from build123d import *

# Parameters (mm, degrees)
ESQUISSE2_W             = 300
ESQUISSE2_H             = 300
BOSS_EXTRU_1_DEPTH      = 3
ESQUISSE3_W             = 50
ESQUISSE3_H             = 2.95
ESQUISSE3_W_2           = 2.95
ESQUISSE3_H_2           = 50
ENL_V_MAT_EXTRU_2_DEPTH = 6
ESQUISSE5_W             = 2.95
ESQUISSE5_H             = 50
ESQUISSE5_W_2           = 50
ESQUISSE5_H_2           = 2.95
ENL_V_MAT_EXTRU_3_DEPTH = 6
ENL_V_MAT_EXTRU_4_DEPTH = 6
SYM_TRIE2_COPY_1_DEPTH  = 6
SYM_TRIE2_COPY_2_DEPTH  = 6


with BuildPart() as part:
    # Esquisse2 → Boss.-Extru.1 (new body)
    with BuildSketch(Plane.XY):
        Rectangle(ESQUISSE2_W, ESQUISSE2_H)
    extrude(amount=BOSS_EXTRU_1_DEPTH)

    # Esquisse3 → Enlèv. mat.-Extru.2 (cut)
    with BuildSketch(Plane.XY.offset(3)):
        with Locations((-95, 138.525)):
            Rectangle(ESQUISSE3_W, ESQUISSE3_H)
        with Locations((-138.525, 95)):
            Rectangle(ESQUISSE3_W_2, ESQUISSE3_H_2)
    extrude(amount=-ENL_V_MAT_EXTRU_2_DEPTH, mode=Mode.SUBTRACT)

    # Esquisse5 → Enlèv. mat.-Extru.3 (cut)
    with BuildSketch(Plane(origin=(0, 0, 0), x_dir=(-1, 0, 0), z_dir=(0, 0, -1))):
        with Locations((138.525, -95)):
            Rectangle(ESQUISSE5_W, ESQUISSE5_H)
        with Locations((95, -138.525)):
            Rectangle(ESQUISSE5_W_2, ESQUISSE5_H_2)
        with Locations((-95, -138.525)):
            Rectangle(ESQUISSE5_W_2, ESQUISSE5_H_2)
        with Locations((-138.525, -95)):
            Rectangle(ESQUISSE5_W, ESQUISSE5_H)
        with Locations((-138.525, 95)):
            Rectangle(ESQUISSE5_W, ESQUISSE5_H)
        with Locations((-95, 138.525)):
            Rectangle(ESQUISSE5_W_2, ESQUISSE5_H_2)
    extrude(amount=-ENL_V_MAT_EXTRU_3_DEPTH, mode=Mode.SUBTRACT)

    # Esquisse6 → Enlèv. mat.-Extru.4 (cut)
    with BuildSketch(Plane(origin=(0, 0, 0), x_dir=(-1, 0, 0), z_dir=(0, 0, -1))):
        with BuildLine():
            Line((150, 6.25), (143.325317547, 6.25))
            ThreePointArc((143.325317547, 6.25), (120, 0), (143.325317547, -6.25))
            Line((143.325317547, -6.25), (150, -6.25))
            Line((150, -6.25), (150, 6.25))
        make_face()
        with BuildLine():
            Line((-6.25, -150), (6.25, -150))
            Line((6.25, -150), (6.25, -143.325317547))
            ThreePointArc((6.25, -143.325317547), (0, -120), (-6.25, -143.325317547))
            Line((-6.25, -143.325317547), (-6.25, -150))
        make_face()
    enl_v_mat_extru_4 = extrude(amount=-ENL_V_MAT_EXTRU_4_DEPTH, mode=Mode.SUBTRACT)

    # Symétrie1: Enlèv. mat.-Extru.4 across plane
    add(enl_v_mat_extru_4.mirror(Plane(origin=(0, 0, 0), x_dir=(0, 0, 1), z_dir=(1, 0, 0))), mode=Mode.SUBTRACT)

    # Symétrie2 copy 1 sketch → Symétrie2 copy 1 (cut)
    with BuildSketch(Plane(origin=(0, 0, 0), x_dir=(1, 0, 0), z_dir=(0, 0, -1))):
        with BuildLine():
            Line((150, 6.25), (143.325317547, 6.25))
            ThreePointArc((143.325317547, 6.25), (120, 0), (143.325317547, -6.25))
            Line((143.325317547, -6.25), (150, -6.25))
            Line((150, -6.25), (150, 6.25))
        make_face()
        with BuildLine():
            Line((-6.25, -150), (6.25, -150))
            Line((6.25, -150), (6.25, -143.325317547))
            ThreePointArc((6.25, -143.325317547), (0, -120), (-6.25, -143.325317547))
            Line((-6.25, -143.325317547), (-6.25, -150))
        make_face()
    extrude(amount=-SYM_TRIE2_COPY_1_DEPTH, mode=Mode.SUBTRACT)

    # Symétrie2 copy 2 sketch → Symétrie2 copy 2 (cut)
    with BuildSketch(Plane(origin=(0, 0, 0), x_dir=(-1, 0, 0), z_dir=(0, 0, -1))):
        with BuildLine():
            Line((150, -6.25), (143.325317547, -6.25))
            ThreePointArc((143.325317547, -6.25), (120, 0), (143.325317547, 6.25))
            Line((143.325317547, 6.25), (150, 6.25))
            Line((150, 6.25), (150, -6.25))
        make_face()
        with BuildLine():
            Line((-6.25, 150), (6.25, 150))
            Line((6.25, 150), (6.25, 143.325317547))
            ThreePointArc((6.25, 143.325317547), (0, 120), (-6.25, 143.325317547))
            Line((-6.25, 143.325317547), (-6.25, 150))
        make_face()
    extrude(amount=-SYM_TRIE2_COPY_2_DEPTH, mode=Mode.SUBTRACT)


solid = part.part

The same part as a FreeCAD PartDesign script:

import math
import FreeCAD as App
import Part
import Sketcher
from FreeCAD import Vector

doc = App.newDocument("Part")
body = doc.addObject("PartDesign::Body", "Body")

# Sketch on XY plane
sketch1 = body.newObject("Sketcher::SketchObject", "Sketch")
sketch1.AttachmentSupport = (doc.getObject("XY_Plane"), [""])
sketch1.MapMode = "FlatFace"
sketch1.addGeometry([
    Part.LineSegment(Vector(-150, 150, 0), Vector(-150, -150, 0)),
    Part.LineSegment(Vector(-150, -150, 0), Vector(150, -150, 0)),
    Part.LineSegment(Vector(150, -150, 0), Vector(150, 150, 0)),
    Part.LineSegment(Vector(150, 150, 0), Vector(-150, 150, 0)),
], False)
sketch1.addConstraint([
    Sketcher.Constraint("Coincident", 0, 2, 1, 1),
    Sketcher.Constraint("Coincident", 1, 2, 2, 1),
    Sketcher.Constraint("Coincident", 2, 2, 3, 1),
    Sketcher.Constraint("Coincident", 3, 2, 0, 1),
    Sketcher.Constraint("Vertical", 0),
    Sketcher.Constraint("Horizontal", 1),
    Sketcher.Constraint("Vertical", 2),
    Sketcher.Constraint("Horizontal", 3),
    Sketcher.Constraint("Symmetric", 0, 2, 2, 2, -1, 1),
    Sketcher.Constraint("Equal", 3, 0),
    Sketcher.Constraint("DistanceX", 1, 1, 1, 2, 300.0),
])
pad1 = body.newObject("PartDesign::Pad", "Pad")
pad1.Profile = sketch1
pad1.Length = 3

# Sketch on XY plane
sketch2 = body.newObject("Sketcher::SketchObject", "Sketch001")
sketch2.AttachmentSupport = (doc.getObject("XY_Plane"), [""])
sketch2.MapMode = "FlatFace"
sketch2.AttachmentOffset = App.Placement(Vector(0, 0, 3), App.Rotation())
sketch2.addGeometry([
    Part.LineSegment(Vector(-120, 140, 0), Vector(-120, 137.1, 0)),  # 0
    Part.LineSegment(Vector(-120, 137.1, 0), Vector(-70, 137.1, 0)),  # 1
    Part.LineSegment(Vector(-70, 137.1, 0), Vector(-70, 140, 0)),  # 2
    Part.LineSegment(Vector(-70, 140, 0), Vector(-120, 140, 0)),  # 3
    Part.LineSegment(Vector(-140, 120, 0), Vector(-140, 70, 0)),  # 4
    Part.LineSegment(Vector(-140, 70, 0), Vector(-137.1, 70, 0)),  # 5
    Part.LineSegment(Vector(-137.1, 70, 0), Vector(-137.1, 120, 0)),  # 6
    Part.LineSegment(Vector(-137.1, 120, 0), Vector(-140, 120, 0)),  # 7
], False)
sketch2.addConstraint([
    Sketcher.Constraint("Coincident", 0, 2, 1, 1),
    Sketcher.Constraint("Coincident", 1, 2, 2, 1),
    Sketcher.Constraint("Coincident", 2, 2, 3, 1),
    Sketcher.Constraint("Coincident", 3, 2, 0, 1),
    Sketcher.Constraint("Coincident", 4, 2, 5, 1),
    Sketcher.Constraint("Coincident", 5, 2, 6, 1),
    Sketcher.Constraint("Coincident", 6, 2, 7, 1),
    Sketcher.Constraint("Coincident", 7, 2, 4, 1),
    Sketcher.Constraint("Vertical", 0),
    Sketcher.Constraint("Horizontal", 1),
    Sketcher.Constraint("Vertical", 2),
    Sketcher.Constraint("Horizontal", 3),
    Sketcher.Constraint("Vertical", 4),
    Sketcher.Constraint("Horizontal", 5),
    Sketcher.Constraint("Vertical", 6),
    Sketcher.Constraint("Horizontal", 7),
    Sketcher.Constraint("Equal", 7, 0),
    Sketcher.Constraint("Equal", 3, 4),
    Sketcher.Constraint("DistanceX", 1, 1, 1, 2, 50.0),
    Sketcher.Constraint("DistanceX", 0, 2, -1, 1, 120.0),
    Sketcher.Constraint("DistanceY", -1, 1, 2, 2, 140.0),
    Sketcher.Constraint("DistanceX", 4, 2, -1, 1, 140.0),
    Sketcher.Constraint("DistanceY", -1, 1, 4, 2, 70.0),
    Sketcher.Constraint("DistanceX", 5, 1, 5, 2, 2.95),
])
pocket1 = body.newObject("PartDesign::Pocket", "Pocket")
pocket1.Profile = sketch2
pocket1.Length = 6

# Sketch on XY plane
sketch3 = body.newObject("Sketcher::SketchObject", "Sketch002")
sketch3.AttachmentSupport = (doc.getObject("XY_Plane"), [""])
sketch3.MapMode = "FlatFace"
sketch3.addGeometry([
    Part.LineSegment(Vector(-137.1, -70, 0), Vector(-137.1, -120, 0)),  # 0
    Part.LineSegment(Vector(-137.1, -120, 0), Vector(-140, -120, 0)),  # 1
    Part.LineSegment(Vector(-140, -120, 0), Vector(-140, -70, 0)),  # 2
    Part.LineSegment(Vector(-140, -70, 0), Vector(-137.1, -70, 0)),  # 3
    Part.LineSegment(Vector(-70, -137.1, 0), Vector(-70, -140, 0)),  # 4
    Part.LineSegment(Vector(-70, -140, 0), Vector(-120, -140, 0)),  # 5
    Part.LineSegment(Vector(-120, -140, 0), Vector(-120, -137.1, 0)),  # 6
    Part.LineSegment(Vector(-120, -137.1, 0), Vector(-70, -137.1, 0)),  # 7
    Part.LineSegment(Vector(120, -137.1, 0), Vector(120, -140, 0)),  # 8
    Part.LineSegment(Vector(120, -140, 0), Vector(70, -140, 0)),  # 9
    Part.LineSegment(Vector(70, -140, 0), Vector(70, -137.1, 0)),  # 10
    Part.LineSegment(Vector(70, -137.1, 0), Vector(120, -137.1, 0)),  # 11
    Part.LineSegment(Vector(140, -70, 0), Vector(140, -120, 0)),  # 12
    Part.LineSegment(Vector(140, -120, 0), Vector(137.1, -120, 0)),  # 13
    Part.LineSegment(Vector(137.1, -120, 0), Vector(137.1, -70, 0)),  # 14
    Part.LineSegment(Vector(137.1, -70, 0), Vector(140, -70, 0)),  # 15
    Part.LineSegment(Vector(140, 120, 0), Vector(140, 70, 0)),  # 16
    Part.LineSegment(Vector(140, 70, 0), Vector(137.1, 70, 0)),  # 17
    Part.LineSegment(Vector(137.1, 70, 0), Vector(137.1, 120, 0)),  # 18
    Part.LineSegment(Vector(137.1, 120, 0), Vector(140, 120, 0)),  # 19
    Part.LineSegment(Vector(120, 140, 0), Vector(120, 137.1, 0)),  # 20
    Part.LineSegment(Vector(120, 137.1, 0), Vector(70, 137.1, 0)),  # 21
    Part.LineSegment(Vector(70, 137.1, 0), Vector(70, 140, 0)),  # 22
    Part.LineSegment(Vector(70, 140, 0), Vector(120, 140, 0)),  # 23
], False)
sketch3.addConstraint([
    Sketcher.Constraint("Coincident", 0, 2, 1, 1),
    Sketcher.Constraint("Coincident", 1, 2, 2, 1),
    Sketcher.Constraint("Coincident", 2, 2, 3, 1),
    Sketcher.Constraint("Coincident", 3, 2, 0, 1),
    Sketcher.Constraint("Coincident", 4, 2, 5, 1),
    Sketcher.Constraint("Coincident", 5, 2, 6, 1),
    Sketcher.Constraint("Coincident", 6, 2, 7, 1),
    Sketcher.Constraint("Coincident", 7, 2, 4, 1),
    Sketcher.Constraint("Coincident", 8, 2, 9, 1),
    Sketcher.Constraint("Coincident", 9, 2, 10, 1),
    Sketcher.Constraint("Coincident", 10, 2, 11, 1),
    Sketcher.Constraint("Coincident", 11, 2, 8, 1),
    Sketcher.Constraint("Coincident", 12, 2, 13, 1),
    Sketcher.Constraint("Coincident", 13, 2, 14, 1),
    Sketcher.Constraint("Coincident", 14, 2, 15, 1),
    Sketcher.Constraint("Coincident", 15, 2, 12, 1),
    Sketcher.Constraint("Coincident", 16, 2, 17, 1),
    Sketcher.Constraint("Coincident", 17, 2, 18, 1),
    Sketcher.Constraint("Coincident", 18, 2, 19, 1),
    Sketcher.Constraint("Coincident", 19, 2, 16, 1),
    Sketcher.Constraint("Coincident", 20, 2, 21, 1),
    Sketcher.Constraint("Coincident", 21, 2, 22, 1),
    Sketcher.Constraint("Coincident", 22, 2, 23, 1),
    Sketcher.Constraint("Coincident", 23, 2, 20, 1),
    Sketcher.Constraint("Vertical", 0),
    Sketcher.Constraint("Horizontal", 1),
    Sketcher.Constraint("Vertical", 2),
    Sketcher.Constraint("Horizontal", 3),
    Sketcher.Constraint("Vertical", 4),
    Sketcher.Constraint("Horizontal", 5),
    Sketcher.Constraint("Vertical", 6),
    Sketcher.Constraint("Horizontal", 7),
    Sketcher.Constraint("Vertical", 8),
    Sketcher.Constraint("Horizontal", 9),
    Sketcher.Constraint("Vertical", 10),
    Sketcher.Constraint("Horizontal", 11),
    Sketcher.Constraint("Vertical", 12),
    Sketcher.Constraint("Horizontal", 13),
    Sketcher.Constraint("Vertical", 14),
    Sketcher.Constraint("Horizontal", 15),
    Sketcher.Constraint("Vertical", 16),
    Sketcher.Constraint("Horizontal", 17),
    Sketcher.Constraint("Vertical", 18),
    Sketcher.Constraint("Horizontal", 19),
    Sketcher.Constraint("Vertical", 20),
    Sketcher.Constraint("Horizontal", 21),
    Sketcher.Constraint("Vertical", 22),
    Sketcher.Constraint("Horizontal", 23),
    Sketcher.Constraint("Symmetric", 2, 2, 16, 2, -1, 1),
    Sketcher.Constraint("Symmetric", 0, 2, 18, 2, -1, 1),
    Sketcher.Constraint("Symmetric", 6, 2, 20, 2, -1, 1),
    Sketcher.Constraint("Symmetric", 4, 2, 22, 2, -1, 1),
    Sketcher.Constraint("Symmetric", 5, 2, 8, 2, -2),
    Sketcher.Constraint("Symmetric", 7, 2, 10, 2, -2),
    Sketcher.Constraint("Symmetric", 1, 2, 12, 2, -2),
    Sketcher.Constraint("Symmetric", 3, 2, 14, 2, -2),
    Sketcher.Constraint("Equal", 23, 0),
    Sketcher.Constraint("Equal", 19, 4),
    Sketcher.Constraint("DistanceX", 5, 2, 5, 1, 50.0),
    Sketcher.Constraint("DistanceY", 0, 2, -1, 1, 120.0),
    Sketcher.Constraint("DistanceX", 1, 2, -1, 1, 140.0),
    Sketcher.Constraint("DistanceX", 4, 2, -1, 1, 70.0),
    Sketcher.Constraint("DistanceY", 4, 2, -1, 1, 140.0),
    Sketcher.Constraint("DistanceX", 1, 2, 1, 1, 2.95),
])
pocket2 = body.newObject("PartDesign::Pocket", "Pocket001")
pocket2.Profile = sketch3
pocket2.Length = 6
pocket2.Reversed = True

# Sketch on XY plane
sketch4 = body.newObject("Sketcher::SketchObject", "Sketch003")
sketch4.AttachmentSupport = (doc.getObject("XY_Plane"), [""])
sketch4.MapMode = "FlatFace"
sketch4.addGeometry([
    Part.LineSegment(Vector(-150, 6, 0), Vector(-143, 6, 0)),  # 0
    Part.ArcOfCircle(Part.Circle(Vector(-132, 0, 0), Vector(0, 0, 1), 12), math.radians(-150), math.radians(150)),  # 1
    Part.LineSegment(Vector(-143, -6, 0), Vector(-150, -6, 0)),  # 2
    Part.LineSegment(Vector(-150, -6, 0), Vector(-150, 6, 0)),  # 3
    Part.LineSegment(Vector(6, -150, 0), Vector(-6, -150, 0)),  # 4
    Part.LineSegment(Vector(-6, -150, 0), Vector(-6, -143, 0)),  # 5
    Part.ArcOfCircle(Part.Circle(Vector(0, -132, 0), Vector(0, 0, 1), 12), math.radians(-60), math.radians(240)),  # 6
    Part.LineSegment(Vector(6, -143, 0), Vector(6, -150, 0)),  # 7
], False)
sketch4.addConstraint([
    Sketcher.Constraint("Coincident", 0, 2, 1, 2),
    Sketcher.Constraint("Coincident", 1, 1, 2, 1),
    Sketcher.Constraint("Coincident", 2, 2, 3, 1),
    Sketcher.Constraint("Coincident", 3, 2, 0, 1),
    Sketcher.Constraint("Coincident", 4, 2, 5, 1),
    Sketcher.Constraint("Coincident", 5, 2, 6, 2),
    Sketcher.Constraint("Coincident", 6, 1, 7, 1),
    Sketcher.Constraint("Coincident", 7, 2, 4, 1),
    Sketcher.Constraint("Horizontal", 0),
    Sketcher.Constraint("Horizontal", 2),
    Sketcher.Constraint("Vertical", 3),
    Sketcher.Constraint("Horizontal", 4),
    Sketcher.Constraint("Vertical", 5),
    Sketcher.Constraint("Vertical", 7),
    Sketcher.Constraint("Equal", 1, 6),
    Sketcher.Constraint("Symmetric", 5, 2, 6, 1, -2),
    Sketcher.Constraint("Symmetric", 0, 2, 1, 1, -1),
    Sketcher.Constraint("Equal", 4, 3),
    Sketcher.Constraint("Equal", 2, 5),
    Sketcher.Constraint("Radius", 1, 12.5),
    Sketcher.Constraint("DistanceX", 4, 2, 4, 1, 12.5),
    Sketcher.Constraint("DistanceX", 2, 2, -1, 1, 150.0),
    Sketcher.Constraint("DistanceY", 4, 2, -1, 1, 150.0),
    Sketcher.Constraint("DistanceX", 1, 3, -1, 1, 132.5),
])
pocket3 = body.newObject("PartDesign::Pocket", "Pocket002")
pocket3.Profile = sketch4
pocket3.Length = 6
pocket3.Reversed = True
doc.recompute()

mirrored = body.newObject("PartDesign::Mirrored", "Mirrored")
mirrored.Originals = [pocket3]
mirrored.MirrorPlane = (doc.getObject("YZ_Plane"), [""])
body.Tip = mirrored

# Sketch on XY plane
sketch5 = body.newObject("Sketcher::SketchObject", "Sketch004")
sketch5.AttachmentSupport = (doc.getObject("XY_Plane"), [""])
sketch5.MapMode = "FlatFace"
sketch5.addGeometry([
    Part.LineSegment(Vector(150, -6, 0), Vector(143, -6, 0)),  # 0
    Part.ArcOfCircle(Part.Circle(Vector(132, 0, 0), Vector(0, 0, 1), 12), math.radians(30), math.radians(330)),  # 1
    Part.LineSegment(Vector(143, 6, 0), Vector(150, 6, 0)),  # 2
    Part.LineSegment(Vector(150, 6, 0), Vector(150, -6, 0)),  # 3
    Part.LineSegment(Vector(-6, 150, 0), Vector(6, 150, 0)),  # 4
    Part.LineSegment(Vector(6, 150, 0), Vector(6, 143, 0)),  # 5
    Part.ArcOfCircle(Part.Circle(Vector(0, 132, 0), Vector(0, 0, 1), 12), math.radians(120), math.radians(420)),  # 6
    Part.LineSegment(Vector(-6, 143, 0), Vector(-6, 150, 0)),  # 7
], False)
sketch5.addConstraint([
    Sketcher.Constraint("Coincident", 0, 2, 1, 2),
    Sketcher.Constraint("Coincident", 1, 1, 2, 1),
    Sketcher.Constraint("Coincident", 2, 2, 3, 1),
    Sketcher.Constraint("Coincident", 3, 2, 0, 1),
    Sketcher.Constraint("Coincident", 4, 2, 5, 1),
    Sketcher.Constraint("Coincident", 5, 2, 6, 2),
    Sketcher.Constraint("Coincident", 6, 1, 7, 1),
    Sketcher.Constraint("Coincident", 7, 2, 4, 1),
    Sketcher.Constraint("Horizontal", 0),
    Sketcher.Constraint("Horizontal", 2),
    Sketcher.Constraint("Vertical", 3),
    Sketcher.Constraint("Horizontal", 4),
    Sketcher.Constraint("Vertical", 5),
    Sketcher.Constraint("Vertical", 7),
    Sketcher.Constraint("Equal", 1, 6),
    Sketcher.Constraint("Symmetric", 5, 2, 6, 1, -2),
    Sketcher.Constraint("Symmetric", 0, 2, 1, 1, -1),
    Sketcher.Constraint("Equal", 4, 3),
    Sketcher.Constraint("Equal", 2, 5),
    Sketcher.Constraint("Radius", 1, 12.5),
    Sketcher.Constraint("DistanceX", 4, 1, 4, 2, 12.5),
    Sketcher.Constraint("DistanceX", -1, 1, 2, 2, 150.0),
    Sketcher.Constraint("DistanceY", -1, 1, 4, 2, 150.0),
    Sketcher.Constraint("DistanceX", -1, 1, 1, 3, 132.5),
])
pocket4 = body.newObject("PartDesign::Pocket", "Pocket003")
pocket4.Profile = sketch5
pocket4.Length = 6
pocket4.Reversed = True

# Sketch on XY plane
sketch6 = body.newObject("Sketcher::SketchObject", "Sketch005")
sketch6.AttachmentSupport = (doc.getObject("XY_Plane"), [""])
sketch6.MapMode = "FlatFace"
sketch6.addGeometry([
    Part.LineSegment(Vector(-143, -6, 0), Vector(-150, -6, 0)),  # 0
    Part.LineSegment(Vector(-150, -6, 0), Vector(-150, 6, 0)),  # 1
    Part.LineSegment(Vector(-150, 6, 0), Vector(-143, 6, 0)),  # 2
    Part.ArcOfCircle(Part.Circle(Vector(-132, 0, 0), Vector(0, 0, 1), 12), math.radians(-150), math.radians(150)),  # 3
    Part.LineSegment(Vector(-6, 150, 0), Vector(6, 150, 0)),  # 4
    Part.LineSegment(Vector(6, 150, 0), Vector(6, 143, 0)),  # 5
    Part.ArcOfCircle(Part.Circle(Vector(0, 132, 0), Vector(0, 0, 1), 12), math.radians(120), math.radians(420)),  # 6
    Part.LineSegment(Vector(-6, 143, 0), Vector(-6, 150, 0)),  # 7
], False)
sketch6.addConstraint([
    Sketcher.Constraint("Coincident", 0, 2, 1, 1),
    Sketcher.Constraint("Coincident", 1, 2, 2, 1),
    Sketcher.Constraint("Coincident", 2, 2, 3, 2),
    Sketcher.Constraint("Coincident", 3, 1, 0, 1),
    Sketcher.Constraint("Coincident", 4, 2, 5, 1),
    Sketcher.Constraint("Coincident", 5, 2, 6, 2),
    Sketcher.Constraint("Coincident", 6, 1, 7, 1),
    Sketcher.Constraint("Coincident", 7, 2, 4, 1),
    Sketcher.Constraint("Horizontal", 0),
    Sketcher.Constraint("Vertical", 1),
    Sketcher.Constraint("Horizontal", 2),
    Sketcher.Constraint("Horizontal", 4),
    Sketcher.Constraint("Vertical", 5),
    Sketcher.Constraint("Vertical", 7),
    Sketcher.Constraint("Equal", 3, 6),
    Sketcher.Constraint("Symmetric", 5, 2, 6, 1, -2),
    Sketcher.Constraint("Symmetric", 2, 2, 3, 1, -1),
    Sketcher.Constraint("Equal", 4, 1),
    Sketcher.Constraint("Equal", 2, 5),
    Sketcher.Constraint("Radius", 3, 12.5),
    Sketcher.Constraint("DistanceX", 4, 1, 4, 2, 12.5),
    Sketcher.Constraint("DistanceX", 0, 2, -1, 1, 150.0),
    Sketcher.Constraint("DistanceY", -1, 1, 4, 2, 150.0),
    Sketcher.Constraint("DistanceX", 3, 3, -1, 1, 132.5),
])
pocket5 = body.newObject("PartDesign::Pocket", "Pocket004")
pocket5.Profile = sketch6
pocket5.Length = 6
pocket5.Reversed = True

doc.recompute()
